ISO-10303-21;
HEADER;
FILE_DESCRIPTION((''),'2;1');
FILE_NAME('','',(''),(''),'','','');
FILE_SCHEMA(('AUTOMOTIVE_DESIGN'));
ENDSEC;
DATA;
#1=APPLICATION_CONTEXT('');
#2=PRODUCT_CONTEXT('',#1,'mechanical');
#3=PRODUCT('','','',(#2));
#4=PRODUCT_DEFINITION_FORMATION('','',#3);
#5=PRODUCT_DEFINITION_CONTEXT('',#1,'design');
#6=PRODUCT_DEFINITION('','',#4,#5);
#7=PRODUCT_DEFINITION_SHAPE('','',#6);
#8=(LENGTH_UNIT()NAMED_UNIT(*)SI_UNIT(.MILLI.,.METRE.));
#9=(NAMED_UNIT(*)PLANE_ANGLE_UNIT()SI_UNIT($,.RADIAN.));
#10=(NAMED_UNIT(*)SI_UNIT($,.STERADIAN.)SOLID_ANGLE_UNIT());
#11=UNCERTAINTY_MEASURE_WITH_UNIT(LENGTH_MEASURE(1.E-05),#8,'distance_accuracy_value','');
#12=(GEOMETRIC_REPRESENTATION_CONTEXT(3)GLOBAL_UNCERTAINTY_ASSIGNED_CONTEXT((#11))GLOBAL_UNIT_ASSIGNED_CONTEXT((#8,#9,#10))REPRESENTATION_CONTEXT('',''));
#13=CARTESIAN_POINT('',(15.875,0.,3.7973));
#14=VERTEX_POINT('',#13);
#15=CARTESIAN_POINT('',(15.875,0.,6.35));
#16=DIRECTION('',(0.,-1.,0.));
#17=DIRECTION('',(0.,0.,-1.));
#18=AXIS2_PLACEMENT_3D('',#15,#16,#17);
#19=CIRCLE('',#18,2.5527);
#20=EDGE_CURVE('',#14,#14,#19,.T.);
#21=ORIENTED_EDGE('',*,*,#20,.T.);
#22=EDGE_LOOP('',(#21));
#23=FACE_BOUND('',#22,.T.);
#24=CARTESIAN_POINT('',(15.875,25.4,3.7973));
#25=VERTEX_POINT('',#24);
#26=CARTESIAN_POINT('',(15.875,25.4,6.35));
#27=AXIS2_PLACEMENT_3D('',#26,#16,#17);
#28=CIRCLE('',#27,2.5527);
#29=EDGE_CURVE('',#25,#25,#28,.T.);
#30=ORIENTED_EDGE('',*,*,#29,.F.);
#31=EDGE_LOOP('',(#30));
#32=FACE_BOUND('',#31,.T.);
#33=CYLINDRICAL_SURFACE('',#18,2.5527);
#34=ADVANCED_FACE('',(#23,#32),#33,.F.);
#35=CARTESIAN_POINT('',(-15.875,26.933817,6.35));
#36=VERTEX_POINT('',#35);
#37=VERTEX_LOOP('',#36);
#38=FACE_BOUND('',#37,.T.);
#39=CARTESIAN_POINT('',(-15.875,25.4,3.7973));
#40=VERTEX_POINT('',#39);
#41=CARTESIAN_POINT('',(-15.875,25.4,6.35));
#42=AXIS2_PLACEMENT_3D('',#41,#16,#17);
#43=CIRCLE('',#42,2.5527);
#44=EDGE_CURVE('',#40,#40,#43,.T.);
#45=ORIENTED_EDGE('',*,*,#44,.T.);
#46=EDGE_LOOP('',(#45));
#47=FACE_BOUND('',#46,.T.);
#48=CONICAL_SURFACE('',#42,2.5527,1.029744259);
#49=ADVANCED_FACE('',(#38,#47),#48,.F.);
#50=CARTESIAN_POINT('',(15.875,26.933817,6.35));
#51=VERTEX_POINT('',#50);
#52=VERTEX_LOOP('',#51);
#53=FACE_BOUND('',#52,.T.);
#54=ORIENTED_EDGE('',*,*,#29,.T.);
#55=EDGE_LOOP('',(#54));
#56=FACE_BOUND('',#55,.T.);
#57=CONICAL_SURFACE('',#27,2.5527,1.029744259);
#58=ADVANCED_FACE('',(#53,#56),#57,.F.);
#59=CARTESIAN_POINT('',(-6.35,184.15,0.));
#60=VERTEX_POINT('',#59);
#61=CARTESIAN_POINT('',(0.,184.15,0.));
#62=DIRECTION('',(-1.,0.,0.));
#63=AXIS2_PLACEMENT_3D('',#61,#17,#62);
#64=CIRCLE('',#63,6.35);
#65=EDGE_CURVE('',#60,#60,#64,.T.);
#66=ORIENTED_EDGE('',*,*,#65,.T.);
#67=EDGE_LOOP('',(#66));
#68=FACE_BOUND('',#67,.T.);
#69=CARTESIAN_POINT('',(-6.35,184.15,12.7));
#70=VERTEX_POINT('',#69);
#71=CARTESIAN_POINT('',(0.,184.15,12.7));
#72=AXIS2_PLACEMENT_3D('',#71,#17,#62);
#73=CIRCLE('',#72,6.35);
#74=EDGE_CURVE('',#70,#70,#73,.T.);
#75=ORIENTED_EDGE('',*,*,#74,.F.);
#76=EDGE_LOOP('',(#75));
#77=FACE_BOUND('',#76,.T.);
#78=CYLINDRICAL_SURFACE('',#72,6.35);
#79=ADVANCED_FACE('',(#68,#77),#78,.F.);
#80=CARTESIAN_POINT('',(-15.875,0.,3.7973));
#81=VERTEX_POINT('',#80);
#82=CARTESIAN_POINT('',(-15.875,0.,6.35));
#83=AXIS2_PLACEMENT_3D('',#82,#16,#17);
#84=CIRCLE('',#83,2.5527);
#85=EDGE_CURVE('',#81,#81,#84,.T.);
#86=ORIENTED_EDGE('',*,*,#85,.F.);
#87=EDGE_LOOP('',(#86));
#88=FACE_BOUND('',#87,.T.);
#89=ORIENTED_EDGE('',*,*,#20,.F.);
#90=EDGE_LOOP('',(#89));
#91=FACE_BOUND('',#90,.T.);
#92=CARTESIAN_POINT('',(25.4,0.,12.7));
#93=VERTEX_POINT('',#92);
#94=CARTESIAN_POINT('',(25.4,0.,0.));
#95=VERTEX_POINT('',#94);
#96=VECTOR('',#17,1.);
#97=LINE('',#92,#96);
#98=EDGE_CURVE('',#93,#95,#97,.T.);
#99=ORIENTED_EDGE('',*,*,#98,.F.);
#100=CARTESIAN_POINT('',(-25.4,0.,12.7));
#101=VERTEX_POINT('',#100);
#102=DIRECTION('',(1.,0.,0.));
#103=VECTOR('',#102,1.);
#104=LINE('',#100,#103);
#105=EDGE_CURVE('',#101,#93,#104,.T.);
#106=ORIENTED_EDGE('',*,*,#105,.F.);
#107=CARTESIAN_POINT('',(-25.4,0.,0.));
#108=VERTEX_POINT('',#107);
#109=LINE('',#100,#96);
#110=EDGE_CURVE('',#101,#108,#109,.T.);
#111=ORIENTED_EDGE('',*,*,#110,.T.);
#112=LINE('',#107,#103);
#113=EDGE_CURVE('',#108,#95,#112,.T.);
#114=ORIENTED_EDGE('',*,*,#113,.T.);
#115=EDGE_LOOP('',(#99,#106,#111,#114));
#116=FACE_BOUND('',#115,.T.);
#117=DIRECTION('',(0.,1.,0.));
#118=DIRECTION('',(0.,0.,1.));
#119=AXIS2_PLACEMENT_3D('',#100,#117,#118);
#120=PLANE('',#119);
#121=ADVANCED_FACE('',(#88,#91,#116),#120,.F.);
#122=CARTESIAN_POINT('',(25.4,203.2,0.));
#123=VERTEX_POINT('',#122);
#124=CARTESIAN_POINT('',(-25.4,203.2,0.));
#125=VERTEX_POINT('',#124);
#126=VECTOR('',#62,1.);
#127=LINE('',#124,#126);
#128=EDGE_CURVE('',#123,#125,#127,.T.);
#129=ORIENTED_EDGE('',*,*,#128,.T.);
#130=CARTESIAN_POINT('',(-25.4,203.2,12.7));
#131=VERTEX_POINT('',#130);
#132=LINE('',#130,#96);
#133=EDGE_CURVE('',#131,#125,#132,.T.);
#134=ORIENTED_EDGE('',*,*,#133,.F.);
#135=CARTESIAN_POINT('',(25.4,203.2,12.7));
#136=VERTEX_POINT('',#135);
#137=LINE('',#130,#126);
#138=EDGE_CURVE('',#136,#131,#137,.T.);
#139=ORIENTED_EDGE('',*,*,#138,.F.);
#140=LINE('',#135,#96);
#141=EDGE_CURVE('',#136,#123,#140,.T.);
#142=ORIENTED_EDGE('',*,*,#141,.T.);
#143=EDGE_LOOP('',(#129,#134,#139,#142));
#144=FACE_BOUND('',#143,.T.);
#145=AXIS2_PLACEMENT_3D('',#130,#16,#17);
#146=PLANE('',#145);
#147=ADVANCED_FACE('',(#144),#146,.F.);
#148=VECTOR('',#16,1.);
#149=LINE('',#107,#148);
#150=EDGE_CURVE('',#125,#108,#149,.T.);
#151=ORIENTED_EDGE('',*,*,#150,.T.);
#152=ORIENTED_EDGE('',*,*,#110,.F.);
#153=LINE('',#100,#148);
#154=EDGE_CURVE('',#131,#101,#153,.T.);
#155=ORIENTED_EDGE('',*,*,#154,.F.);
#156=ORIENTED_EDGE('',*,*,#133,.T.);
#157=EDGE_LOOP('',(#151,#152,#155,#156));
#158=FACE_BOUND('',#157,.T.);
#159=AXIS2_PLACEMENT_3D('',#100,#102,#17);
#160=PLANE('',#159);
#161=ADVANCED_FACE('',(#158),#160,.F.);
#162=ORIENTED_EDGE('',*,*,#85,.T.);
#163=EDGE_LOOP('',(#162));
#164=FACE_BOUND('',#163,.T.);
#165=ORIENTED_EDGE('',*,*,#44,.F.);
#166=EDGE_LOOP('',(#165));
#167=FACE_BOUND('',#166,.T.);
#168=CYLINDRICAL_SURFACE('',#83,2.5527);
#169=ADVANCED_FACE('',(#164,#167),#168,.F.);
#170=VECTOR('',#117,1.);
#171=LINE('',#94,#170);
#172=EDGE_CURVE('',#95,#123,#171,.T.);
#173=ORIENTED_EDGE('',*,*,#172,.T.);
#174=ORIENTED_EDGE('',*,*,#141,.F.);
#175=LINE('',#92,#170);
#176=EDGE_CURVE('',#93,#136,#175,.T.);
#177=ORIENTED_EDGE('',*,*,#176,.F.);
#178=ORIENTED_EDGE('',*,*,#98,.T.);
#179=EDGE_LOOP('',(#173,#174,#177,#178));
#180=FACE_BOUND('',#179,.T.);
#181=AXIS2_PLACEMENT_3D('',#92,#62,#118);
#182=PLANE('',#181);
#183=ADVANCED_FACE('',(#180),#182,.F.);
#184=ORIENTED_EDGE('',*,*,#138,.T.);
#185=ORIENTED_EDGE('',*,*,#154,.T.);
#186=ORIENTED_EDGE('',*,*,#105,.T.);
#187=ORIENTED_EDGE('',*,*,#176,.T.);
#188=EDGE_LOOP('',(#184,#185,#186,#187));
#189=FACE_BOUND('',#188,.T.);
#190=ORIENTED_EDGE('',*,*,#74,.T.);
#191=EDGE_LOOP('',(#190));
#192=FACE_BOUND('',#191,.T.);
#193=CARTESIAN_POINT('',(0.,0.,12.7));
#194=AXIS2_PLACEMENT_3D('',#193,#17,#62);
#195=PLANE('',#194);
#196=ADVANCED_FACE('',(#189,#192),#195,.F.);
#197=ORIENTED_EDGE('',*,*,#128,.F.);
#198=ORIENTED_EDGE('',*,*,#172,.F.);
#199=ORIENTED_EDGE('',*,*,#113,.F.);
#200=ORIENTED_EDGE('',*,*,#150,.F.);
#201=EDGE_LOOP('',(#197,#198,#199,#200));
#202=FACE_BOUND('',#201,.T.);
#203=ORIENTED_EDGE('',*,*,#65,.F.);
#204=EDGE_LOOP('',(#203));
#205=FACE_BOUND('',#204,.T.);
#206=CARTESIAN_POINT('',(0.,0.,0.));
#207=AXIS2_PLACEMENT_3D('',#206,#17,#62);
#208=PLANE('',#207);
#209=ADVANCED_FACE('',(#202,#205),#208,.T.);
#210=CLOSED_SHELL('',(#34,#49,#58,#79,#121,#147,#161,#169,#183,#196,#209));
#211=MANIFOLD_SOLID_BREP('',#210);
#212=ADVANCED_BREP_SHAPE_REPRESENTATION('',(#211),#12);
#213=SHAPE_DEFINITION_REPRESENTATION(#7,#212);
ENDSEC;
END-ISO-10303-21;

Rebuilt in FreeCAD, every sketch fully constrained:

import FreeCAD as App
import Part
import Sketcher

V = App.Vector
Q = App.Units.Quantity


def add_polygon(sketch, points):
    """Adds a closed chain of lines whose ends are joined by coincident constraints."""
    first, n = sketch.GeometryCount, len(points)
    for a, b in zip(points, points[1:] + points[:1]):
        sketch.addGeometry(Part.LineSegment(App.Vector(*a, 0), App.Vector(*b, 0)), False)
    for i in range(n):
        sketch.addConstraint(Sketcher.Constraint("Coincident", first + i, 2, first + (i + 1) % n, 1))

doc = App.newDocument("Part")
params = doc.addObject("Spreadsheet::Sheet", "Params")
for row, (alias, value) in enumerate([
    ("sketch1_width", "2 in"),
    ("sketch1_height", "8 in"),
    ("pad1_length", "0.5 in"),
    ("sketch2_diameter", "0.201 in"),
    ("hole_diameter", "0.201 in"),
    ("hole_depth", "1 in"),
    ("sketch3_diameter", "0.5 in"),
], start=1):
    params.set(f"A{row}", alias)
    params.set(f"B{row}", "=" + value)
    params.setAlias(f"B{row}", alias)

body = doc.addObject("PartDesign::Body", "Body")

# Sketch on XY plane
sketch1 = doc.addObject("Sketcher::SketchObject", "Sketch")
body.addObject(sketch1)
sketch1.AttachmentSupport = (doc.XY_Plane, [""])
sketch1.MapMode = "FlatFace"
add_polygon(sketch1, [(-25, 203), (-25, 0), (25, 0), (25, 203)])  # lines 0-3
sketch1.addConstraint([
    Sketcher.Constraint("Vertical", 0),
    Sketcher.Constraint("Horizontal", 1),
    Sketcher.Constraint("Vertical", 2),
    Sketcher.Constraint("Horizontal", 3),
    Sketcher.Constraint("Symmetric", 0, 2, 1, 2, -1, 1),
    Sketcher.Constraint("DistanceX", 1, 1, 1, 2, Q("2 in")),
    Sketcher.Constraint("DistanceY", 0, 2, 0, 1, Q("8 in")),
])
sketch1.setExpression("Constraints[9]", "Params.sketch1_width")
sketch1.setExpression("Constraints[10]", "Params.sketch1_height")
pad1 = doc.addObject("PartDesign::Pad", "Pad")
body.addObject(pad1)
pad1.Profile = sketch1
pad1.setExpression("Length", "Params.pad1_length")

# Sketch on XZ plane
sketch2 = doc.addObject("Sketcher::SketchObject", "Sketch001")
body.addObject(sketch2)
sketch2.AttachmentSupport = (doc.XZ_Plane, [""])
sketch2.MapMode = "FlatFace"
sketch2.addGeometry([
    Part.Circle(V(-15.9, 6.3, 0), V(0, 0, 1), 2.6),
    Part.Circle(V(15.9, 6.3, 0), V(0, 0, 1), 2.6),
], False)
sketch2.addConstraint([
    Sketcher.Constraint("Equal", 0, 1),
    Sketcher.Constraint("Symmetric", 0, 3, 1, 3, -2),
    Sketcher.Constraint("Diameter", 0, Q("0.201 in")),
    Sketcher.Constraint("DistanceY", -1, 1, 0, 3, Q("0.25 in")),
    Sketcher.Constraint("DistanceX", 0, 3, 1, 3, Q("1.25 in")),
])
sketch2.setExpression("Constraints[2]", "Params.sketch2_diameter")
doc.recompute()
hole = doc.addObject("PartDesign::Hole", "Hole")
body.addObject(hole)
hole.Profile = sketch2
hole.ThreadType = "None"
hole.setExpression("Diameter", "Params.hole_diameter")
hole.DepthType = "Dimension"
hole.setExpression("Depth", "Params.hole_depth")
hole.DrillPoint = "Angled"
hole.DrillPointAngle = 118

# Sketch on XY plane
sketch3 = doc.addObject("Sketcher::SketchObject", "Sketch002")
body.addObject(sketch3)
sketch3.AttachmentSupport = (doc.XY_Plane, [""])
sketch3.MapMode = "FlatFace"
sketch3.addGeometry(Part.Circle(V(0, 184, 0), V(0, 0, 1), 6), False)
sketch3.addConstraint([
    Sketcher.Constraint("PointOnObject", 0, 3, -2),
    Sketcher.Constraint("Diameter", 0, Q("0.5 in")),
    Sketcher.Constraint("DistanceY", -1, 1, 0, 3, Q("7.25 in")),
])
sketch3.setExpression("Constraints[1]", "Params.sketch3_diameter")
pocket1 = doc.addObject("PartDesign::Pocket", "Pocket")
body.addObject(pocket1)
pocket1.Profile = sketch3
pocket1.Type = "ThroughAll"
pocket1.Reversed = True

doc.recompute()
